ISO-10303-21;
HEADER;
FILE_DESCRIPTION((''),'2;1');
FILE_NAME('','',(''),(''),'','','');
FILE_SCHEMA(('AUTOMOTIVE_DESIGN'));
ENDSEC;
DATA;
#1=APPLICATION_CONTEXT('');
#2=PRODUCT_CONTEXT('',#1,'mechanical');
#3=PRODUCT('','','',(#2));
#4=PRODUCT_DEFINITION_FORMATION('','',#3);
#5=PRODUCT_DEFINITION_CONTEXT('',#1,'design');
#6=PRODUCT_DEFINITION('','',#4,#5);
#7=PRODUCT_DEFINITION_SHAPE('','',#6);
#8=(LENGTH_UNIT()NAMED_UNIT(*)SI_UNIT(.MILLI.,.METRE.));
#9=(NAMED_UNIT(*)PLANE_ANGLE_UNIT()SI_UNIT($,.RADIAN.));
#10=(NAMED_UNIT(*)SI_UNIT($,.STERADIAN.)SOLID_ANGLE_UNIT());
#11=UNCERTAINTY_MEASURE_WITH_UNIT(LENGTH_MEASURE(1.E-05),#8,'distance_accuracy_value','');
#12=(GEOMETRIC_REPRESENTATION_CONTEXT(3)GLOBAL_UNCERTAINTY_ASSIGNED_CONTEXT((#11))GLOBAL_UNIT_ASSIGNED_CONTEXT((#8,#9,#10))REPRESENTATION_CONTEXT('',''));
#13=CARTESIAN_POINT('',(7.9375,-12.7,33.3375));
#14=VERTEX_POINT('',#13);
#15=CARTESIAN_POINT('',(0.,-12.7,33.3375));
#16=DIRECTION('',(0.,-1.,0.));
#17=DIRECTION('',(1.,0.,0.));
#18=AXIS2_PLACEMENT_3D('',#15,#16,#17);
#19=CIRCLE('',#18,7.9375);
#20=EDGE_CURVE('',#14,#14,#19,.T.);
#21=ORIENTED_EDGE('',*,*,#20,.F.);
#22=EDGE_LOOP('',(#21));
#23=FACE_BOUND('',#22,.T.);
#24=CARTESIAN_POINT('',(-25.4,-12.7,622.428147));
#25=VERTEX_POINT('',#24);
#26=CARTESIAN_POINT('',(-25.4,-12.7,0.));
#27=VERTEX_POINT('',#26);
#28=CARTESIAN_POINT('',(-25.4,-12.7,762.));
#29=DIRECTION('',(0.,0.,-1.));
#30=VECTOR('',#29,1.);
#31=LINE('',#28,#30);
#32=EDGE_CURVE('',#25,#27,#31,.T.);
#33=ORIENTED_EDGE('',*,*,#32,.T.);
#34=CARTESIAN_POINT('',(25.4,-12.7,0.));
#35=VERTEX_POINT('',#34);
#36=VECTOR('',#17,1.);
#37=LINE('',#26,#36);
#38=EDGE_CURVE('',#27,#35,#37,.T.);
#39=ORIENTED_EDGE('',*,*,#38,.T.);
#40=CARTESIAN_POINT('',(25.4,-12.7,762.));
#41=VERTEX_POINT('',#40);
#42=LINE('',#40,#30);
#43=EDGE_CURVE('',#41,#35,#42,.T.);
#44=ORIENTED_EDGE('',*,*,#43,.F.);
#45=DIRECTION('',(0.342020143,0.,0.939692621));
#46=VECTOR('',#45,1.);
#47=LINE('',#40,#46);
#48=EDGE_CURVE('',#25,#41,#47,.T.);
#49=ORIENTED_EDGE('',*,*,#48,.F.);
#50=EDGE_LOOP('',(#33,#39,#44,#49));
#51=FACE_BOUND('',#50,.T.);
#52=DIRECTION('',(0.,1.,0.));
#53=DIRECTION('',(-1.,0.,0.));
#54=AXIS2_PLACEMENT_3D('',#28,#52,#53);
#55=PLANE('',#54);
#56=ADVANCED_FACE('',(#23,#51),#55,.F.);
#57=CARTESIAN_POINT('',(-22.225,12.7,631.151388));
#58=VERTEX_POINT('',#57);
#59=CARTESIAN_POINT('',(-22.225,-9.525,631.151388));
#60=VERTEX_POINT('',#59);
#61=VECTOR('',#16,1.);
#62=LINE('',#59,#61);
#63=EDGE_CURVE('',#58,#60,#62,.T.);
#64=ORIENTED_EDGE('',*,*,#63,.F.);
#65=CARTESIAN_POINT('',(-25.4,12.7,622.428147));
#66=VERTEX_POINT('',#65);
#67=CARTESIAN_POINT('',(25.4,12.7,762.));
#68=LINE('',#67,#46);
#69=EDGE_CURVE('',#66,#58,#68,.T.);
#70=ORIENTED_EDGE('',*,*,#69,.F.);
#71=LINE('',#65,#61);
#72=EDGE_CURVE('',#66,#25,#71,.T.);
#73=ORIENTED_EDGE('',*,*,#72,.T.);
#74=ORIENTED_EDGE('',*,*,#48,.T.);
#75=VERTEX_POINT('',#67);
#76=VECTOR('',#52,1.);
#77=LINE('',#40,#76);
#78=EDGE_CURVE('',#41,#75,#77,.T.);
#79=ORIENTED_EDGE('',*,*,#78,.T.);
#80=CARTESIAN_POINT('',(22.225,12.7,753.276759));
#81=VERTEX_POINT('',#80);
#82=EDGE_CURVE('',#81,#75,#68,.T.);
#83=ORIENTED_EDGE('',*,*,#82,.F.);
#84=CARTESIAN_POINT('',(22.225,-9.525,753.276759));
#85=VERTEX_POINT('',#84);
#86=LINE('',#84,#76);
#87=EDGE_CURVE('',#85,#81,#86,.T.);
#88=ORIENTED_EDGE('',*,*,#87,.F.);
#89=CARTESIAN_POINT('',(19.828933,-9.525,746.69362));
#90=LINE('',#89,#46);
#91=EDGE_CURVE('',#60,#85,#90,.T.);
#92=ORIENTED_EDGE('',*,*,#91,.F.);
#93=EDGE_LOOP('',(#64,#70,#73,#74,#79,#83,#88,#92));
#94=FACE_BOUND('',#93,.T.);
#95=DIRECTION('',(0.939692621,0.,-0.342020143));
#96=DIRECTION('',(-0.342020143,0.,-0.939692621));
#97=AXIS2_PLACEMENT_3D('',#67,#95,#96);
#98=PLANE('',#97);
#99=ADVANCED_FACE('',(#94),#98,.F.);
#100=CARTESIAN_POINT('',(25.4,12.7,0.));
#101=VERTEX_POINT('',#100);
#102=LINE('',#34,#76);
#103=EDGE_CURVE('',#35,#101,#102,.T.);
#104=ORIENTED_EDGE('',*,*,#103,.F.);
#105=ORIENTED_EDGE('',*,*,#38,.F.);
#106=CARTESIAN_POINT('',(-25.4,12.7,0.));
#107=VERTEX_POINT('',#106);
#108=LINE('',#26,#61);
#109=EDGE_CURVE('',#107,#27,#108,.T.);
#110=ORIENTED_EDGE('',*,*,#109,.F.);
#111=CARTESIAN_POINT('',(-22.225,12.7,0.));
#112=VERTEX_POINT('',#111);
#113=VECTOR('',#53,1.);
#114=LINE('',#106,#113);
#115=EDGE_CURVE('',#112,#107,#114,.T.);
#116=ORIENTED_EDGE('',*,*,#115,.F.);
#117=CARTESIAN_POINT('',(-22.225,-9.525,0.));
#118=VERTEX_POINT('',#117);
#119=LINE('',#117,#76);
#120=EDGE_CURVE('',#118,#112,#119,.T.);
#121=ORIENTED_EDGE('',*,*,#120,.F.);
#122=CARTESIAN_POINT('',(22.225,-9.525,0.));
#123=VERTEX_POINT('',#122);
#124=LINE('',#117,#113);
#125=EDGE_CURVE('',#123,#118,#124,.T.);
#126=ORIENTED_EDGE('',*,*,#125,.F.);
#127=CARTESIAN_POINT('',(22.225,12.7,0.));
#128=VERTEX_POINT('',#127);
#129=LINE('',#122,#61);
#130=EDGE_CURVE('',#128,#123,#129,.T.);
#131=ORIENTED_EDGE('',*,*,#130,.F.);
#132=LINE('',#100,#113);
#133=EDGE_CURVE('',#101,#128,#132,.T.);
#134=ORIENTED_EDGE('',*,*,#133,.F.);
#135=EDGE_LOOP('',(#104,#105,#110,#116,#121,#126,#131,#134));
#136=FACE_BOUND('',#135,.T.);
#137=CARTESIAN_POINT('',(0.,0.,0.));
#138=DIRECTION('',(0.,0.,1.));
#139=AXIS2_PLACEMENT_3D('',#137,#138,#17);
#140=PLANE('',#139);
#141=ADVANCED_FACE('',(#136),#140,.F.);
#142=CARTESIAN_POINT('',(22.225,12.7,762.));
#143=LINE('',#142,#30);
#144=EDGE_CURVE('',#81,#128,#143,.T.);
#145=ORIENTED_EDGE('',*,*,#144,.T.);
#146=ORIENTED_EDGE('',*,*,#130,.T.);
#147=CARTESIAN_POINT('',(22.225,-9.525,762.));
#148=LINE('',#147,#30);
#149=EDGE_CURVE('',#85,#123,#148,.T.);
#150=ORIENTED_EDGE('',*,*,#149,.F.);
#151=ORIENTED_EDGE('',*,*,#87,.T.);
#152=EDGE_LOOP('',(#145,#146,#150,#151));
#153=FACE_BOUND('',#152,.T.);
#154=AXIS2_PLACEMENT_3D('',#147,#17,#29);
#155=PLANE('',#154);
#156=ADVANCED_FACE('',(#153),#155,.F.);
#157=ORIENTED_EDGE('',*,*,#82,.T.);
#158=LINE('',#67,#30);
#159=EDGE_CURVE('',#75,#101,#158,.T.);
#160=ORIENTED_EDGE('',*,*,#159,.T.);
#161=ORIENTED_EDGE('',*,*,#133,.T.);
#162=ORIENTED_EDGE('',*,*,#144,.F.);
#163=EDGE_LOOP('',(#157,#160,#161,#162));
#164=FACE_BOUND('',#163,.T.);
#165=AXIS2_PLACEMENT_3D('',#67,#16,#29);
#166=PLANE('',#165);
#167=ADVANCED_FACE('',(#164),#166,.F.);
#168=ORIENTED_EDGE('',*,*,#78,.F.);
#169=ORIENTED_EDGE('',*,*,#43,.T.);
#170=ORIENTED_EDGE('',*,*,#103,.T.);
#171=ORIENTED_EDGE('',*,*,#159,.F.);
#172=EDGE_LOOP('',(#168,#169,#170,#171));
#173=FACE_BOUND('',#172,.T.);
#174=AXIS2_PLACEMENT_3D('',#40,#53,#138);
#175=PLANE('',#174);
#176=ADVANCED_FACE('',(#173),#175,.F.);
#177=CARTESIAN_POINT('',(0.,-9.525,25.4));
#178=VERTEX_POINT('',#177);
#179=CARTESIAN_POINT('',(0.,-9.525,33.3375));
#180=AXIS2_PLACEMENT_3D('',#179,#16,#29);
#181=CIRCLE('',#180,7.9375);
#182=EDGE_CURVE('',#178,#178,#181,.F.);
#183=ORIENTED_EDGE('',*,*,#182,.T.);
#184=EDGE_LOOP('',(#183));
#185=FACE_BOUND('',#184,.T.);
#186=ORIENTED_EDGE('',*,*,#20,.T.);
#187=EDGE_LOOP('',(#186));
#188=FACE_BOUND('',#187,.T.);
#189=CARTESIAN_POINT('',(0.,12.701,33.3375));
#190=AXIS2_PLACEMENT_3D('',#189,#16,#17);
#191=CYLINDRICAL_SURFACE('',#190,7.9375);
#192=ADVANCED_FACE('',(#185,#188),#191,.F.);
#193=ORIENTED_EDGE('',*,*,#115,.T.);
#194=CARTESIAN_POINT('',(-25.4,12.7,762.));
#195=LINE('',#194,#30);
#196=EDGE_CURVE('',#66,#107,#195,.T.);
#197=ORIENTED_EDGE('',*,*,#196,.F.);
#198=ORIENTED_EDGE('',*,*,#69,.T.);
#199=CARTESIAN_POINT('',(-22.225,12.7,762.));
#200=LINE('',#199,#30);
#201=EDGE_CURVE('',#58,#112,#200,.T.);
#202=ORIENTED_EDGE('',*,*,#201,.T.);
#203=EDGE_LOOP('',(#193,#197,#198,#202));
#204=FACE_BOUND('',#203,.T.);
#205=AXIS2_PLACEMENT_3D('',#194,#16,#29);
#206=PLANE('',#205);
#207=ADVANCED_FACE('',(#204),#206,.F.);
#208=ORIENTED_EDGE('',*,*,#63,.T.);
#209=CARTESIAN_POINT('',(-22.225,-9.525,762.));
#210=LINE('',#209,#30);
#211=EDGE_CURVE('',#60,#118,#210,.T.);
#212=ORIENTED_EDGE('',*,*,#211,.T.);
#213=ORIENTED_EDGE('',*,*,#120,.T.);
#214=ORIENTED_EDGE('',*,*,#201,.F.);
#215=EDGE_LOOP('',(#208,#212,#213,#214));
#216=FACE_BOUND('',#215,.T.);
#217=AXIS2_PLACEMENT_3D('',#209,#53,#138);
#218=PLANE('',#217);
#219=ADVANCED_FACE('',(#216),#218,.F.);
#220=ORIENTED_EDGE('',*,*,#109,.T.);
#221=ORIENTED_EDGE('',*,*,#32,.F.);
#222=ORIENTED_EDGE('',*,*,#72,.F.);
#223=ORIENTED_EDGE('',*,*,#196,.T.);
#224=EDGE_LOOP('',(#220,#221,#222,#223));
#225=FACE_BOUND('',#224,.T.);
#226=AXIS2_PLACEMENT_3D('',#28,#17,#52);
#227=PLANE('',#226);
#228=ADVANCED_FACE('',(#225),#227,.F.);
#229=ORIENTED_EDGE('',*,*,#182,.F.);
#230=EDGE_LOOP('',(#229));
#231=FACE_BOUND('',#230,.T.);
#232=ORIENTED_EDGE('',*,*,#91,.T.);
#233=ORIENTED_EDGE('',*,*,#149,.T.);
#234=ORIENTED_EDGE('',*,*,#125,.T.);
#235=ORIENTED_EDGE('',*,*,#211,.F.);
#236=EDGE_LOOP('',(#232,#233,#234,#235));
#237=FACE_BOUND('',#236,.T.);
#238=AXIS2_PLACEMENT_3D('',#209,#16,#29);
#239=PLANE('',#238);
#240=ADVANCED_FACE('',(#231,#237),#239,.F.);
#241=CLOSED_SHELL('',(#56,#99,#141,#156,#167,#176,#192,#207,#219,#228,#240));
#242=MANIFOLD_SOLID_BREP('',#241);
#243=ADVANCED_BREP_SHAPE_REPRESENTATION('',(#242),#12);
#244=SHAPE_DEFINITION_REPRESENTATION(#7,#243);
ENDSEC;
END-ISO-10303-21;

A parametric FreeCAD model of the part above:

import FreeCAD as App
import Part
import Sketcher
from FreeCAD import Vector
Q = App.Units.Quantity

doc = App.newDocument("Part")
body = doc.addObject("PartDesign::Body", "Body")

sketch1 = doc.addObject("Sketcher::SketchObject", "Sketch")
body.addObject(sketch1)
sketch1.AttachmentSupport = (doc.XY_Plane, [""])
sketch1.MapMode = "FlatFace"
sketch1.addGeometry(Part.LineSegment(Vector(-22.2, -9.5, 0), Vector(-22.2, 12.7, 0)), False)
sketch1.addGeometry(Part.LineSegment(Vector(-22.2, 12.7, 0), Vector(-25.4, 12.7, 0)), False)
sketch1.addGeometry(Part.LineSegment(Vector(-25.4, 12.7, 0), Vector(-25.4, -12.7, 0)), False)
sketch1.addGeometry(Part.LineSegment(Vector(-25.4, -12.7, 0), Vector(25.4, -12.7, 0)), False)
sketch1.addGeometry(Part.LineSegment(Vector(25.4, -12.7, 0), Vector(25.4, 12.7, 0)), False)
sketch1.addGeometry(Part.LineSegment(Vector(25.4, 12.7, 0), Vector(22.2, 12.7, 0)), False)
sketch1.addGeometry(Part.LineSegment(Vector(22.2, 12.7, 0), Vector(22.2, -9.5, 0)), False)
sketch1.addGeometry(Part.LineSegment(Vector(22.2, -9.5, 0), Vector(-22.2, -9.5, 0)), False)
sketch1.addConstraint(Sketcher.Constraint("Coincident", 0, 2, 1, 1))
sketch1.addConstraint(Sketcher.Constraint("Coincident", 1, 2, 2, 1))
sketch1.addConstraint(Sketcher.Constraint("Coincident", 2, 2, 3, 1))
sketch1.addConstraint(Sketcher.Constraint("Coincident", 3, 2, 4, 1))
sketch1.addConstraint(Sketcher.Constraint("Coincident", 4, 2, 5, 1))
sketch1.addConstraint(Sketcher.Constraint("Coincident", 5, 2, 6, 1))
sketch1.addConstraint(Sketcher.Constraint("Coincident", 6, 2, 7, 1))
sketch1.addConstraint(Sketcher.Constraint("Coincident", 7, 2, 0, 1))
sketch1.addConstraint(Sketcher.Constraint("Vertical", 0))
sketch1.addConstraint(Sketcher.Constraint("Horizontal", 1))
sketch1.addConstraint(Sketcher.Constraint("Vertical", 2))
sketch1.addConstraint(Sketcher.Constraint("Horizontal", 3))
sketch1.addConstraint(Sketcher.Constraint("Vertical", 4))
sketch1.addConstraint(Sketcher.Constraint("Horizontal", 5))
sketch1.addConstraint(Sketcher.Constraint("Vertical", 6))
sketch1.addConstraint(Sketcher.Constraint("Horizontal", 7))
sketch1.addConstraint(Sketcher.Constraint("Symmetric", 1, 2, 3, 2, -1, 1))
sketch1.addConstraint(Sketcher.Constraint("Symmetric", 0, 2, 5, 2, -2))
sketch1.addConstraint(Sketcher.Constraint("DistanceX", 3, 1, 3, 2, Q("2 in")))
sketch1.addConstraint(Sketcher.Constraint("DistanceY", 2, 2, 2, 1, Q("1 in")))
sketch1.addConstraint(Sketcher.Constraint("DistanceX", 7, 2, 7, 1, Q("1.75 in")))
sketch1.addConstraint(Sketcher.Constraint("DistanceY", 0, 1, 0, 2, Q("0.875 in")))
pad1 = doc.addObject("PartDesign::Pad", "Pad")
body.addObject(pad1)
pad1.Profile = sketch1
pad1.Length = Q("30 in")

sketch2 = doc.addObject("Sketcher::SketchObject", "Sketch001")
body.addObject(sketch2)
sketch2.AttachmentSupport = (doc.XZ_Plane, [""])
sketch2.MapMode = "FlatFace"
sketch2.AttachmentOffset = App.Placement(Vector(0, 0, 0.5 * 25.4), App.Rotation())
sketch2.addGeometry(Part.LineSegment(Vector(-25, 622, 0), Vector(25, 762, 0)), False)
sketch2.addGeometry(Part.LineSegment(Vector(25, 762, 0), Vector(-25, 762, 0)), False)
sketch2.addGeometry(Part.LineSegment(Vector(-25, 762, 0), Vector(-25, 622, 0)), False)
sketch2.addConstraint(Sketcher.Constraint("Coincident", 0, 2, 1, 1))
sketch2.addConstraint(Sketcher.Constraint("Coincident", 1, 2, 2, 1))
sketch2.addConstraint(Sketcher.Constraint("Coincident", 2, 2, 0, 1))
sketch2.addConstraint(Sketcher.Constraint("Horizontal", 1))
sketch2.addConstraint(Sketcher.Constraint("Vertical", 2))
sketch2.addConstraint(Sketcher.Constraint("DistanceX", 1, 2, 1, 1, Q("2 in")))
sketch2.addConstraint(Sketcher.Constraint("DistanceX", -1, 1, 0, 2, Q("1 in")))
sketch2.addConstraint(Sketcher.Constraint("DistanceY", -1, 1, 0, 2, Q("30 in")))
sketch2.addConstraint(Sketcher.Constraint("Angle", 0, Q("70 deg")))
pocket1 = doc.addObject("PartDesign::Pocket", "Pocket")
body.addObject(pocket1)
pocket1.Profile = sketch2
pocket1.Type = "ThroughAll"

sketch3 = doc.addObject("Sketcher::SketchObject", "Sketch002")
body.addObject(sketch3)
sketch3.AttachmentSupport = (doc.XZ_Plane, [""])
sketch3.MapMode = "FlatFace"
sketch3.AttachmentOffset = App.Placement(Vector(0, 0, 0.5 * 25.4), App.Rotation())
sketch3.addGeometry(Part.Circle(Vector(0, 33, 0), Vector(0, 0, 1), 8), False)
sketch3.addConstraint(Sketcher.Constraint("PointOnObject", 0, 3, -2))
sketch3.addConstraint(Sketcher.Constraint("Diameter", 0, Q("0.625 in")))
sketch3.addConstraint(Sketcher.Constraint("DistanceY", -1, 1, 0, 3, Q("1.3125 in")))
pocket2 = doc.addObject("PartDesign::Pocket", "Pocket001")
body.addObject(pocket2)
pocket2.Profile = sketch3
pocket2.Type = "UpToFirst"

doc.recompute()
